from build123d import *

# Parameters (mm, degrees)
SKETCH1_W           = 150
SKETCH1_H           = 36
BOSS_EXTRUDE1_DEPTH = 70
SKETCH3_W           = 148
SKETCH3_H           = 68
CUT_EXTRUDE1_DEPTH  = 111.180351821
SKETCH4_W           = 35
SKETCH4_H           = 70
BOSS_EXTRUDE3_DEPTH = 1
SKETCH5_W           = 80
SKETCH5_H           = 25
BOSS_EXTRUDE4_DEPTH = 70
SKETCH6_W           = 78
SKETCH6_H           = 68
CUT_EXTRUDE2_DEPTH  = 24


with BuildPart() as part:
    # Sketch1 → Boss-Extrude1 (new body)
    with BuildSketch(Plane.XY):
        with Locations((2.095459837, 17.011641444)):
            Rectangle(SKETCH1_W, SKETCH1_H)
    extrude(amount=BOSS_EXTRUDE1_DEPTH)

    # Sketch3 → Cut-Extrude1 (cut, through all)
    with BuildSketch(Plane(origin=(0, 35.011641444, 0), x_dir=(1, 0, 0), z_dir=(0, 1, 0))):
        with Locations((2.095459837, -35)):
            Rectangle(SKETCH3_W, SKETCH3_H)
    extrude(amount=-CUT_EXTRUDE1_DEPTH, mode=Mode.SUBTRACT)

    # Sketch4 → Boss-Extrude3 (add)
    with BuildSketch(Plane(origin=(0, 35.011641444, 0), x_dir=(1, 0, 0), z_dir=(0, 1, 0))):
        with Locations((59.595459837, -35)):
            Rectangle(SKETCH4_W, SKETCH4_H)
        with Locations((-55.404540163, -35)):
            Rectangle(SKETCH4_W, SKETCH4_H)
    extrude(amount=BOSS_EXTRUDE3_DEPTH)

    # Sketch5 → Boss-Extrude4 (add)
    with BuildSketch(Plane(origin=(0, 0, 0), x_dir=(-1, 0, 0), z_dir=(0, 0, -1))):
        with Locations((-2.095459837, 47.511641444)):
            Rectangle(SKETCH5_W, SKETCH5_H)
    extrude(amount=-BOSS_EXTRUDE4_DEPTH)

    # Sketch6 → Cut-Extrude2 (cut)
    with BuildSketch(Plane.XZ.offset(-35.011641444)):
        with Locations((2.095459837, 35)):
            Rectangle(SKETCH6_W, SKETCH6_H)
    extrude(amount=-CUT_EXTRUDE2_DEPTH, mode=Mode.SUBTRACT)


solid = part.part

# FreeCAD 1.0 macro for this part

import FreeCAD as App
import Part
import Sketcher
from FreeCAD import Vector


def add_polygon(sketch, points):
    """Adds a closed chain of lines whose ends are joined by coincident constraints."""
    first, n = sketch.GeometryCount, len(points)
    for a, b in zip(points, points[1:] + points[:1]):
        sketch.addGeometry(Part.LineSegment(App.Vector(*a, 0), App.Vector(*b, 0)), False)
    for i in range(n):
        sketch.addConstraint(Sketcher.Constraint("Coincident", first + i, 2, first + (i + 1) % n, 1))

doc = App.newDocument("Part")
body = doc.addObject("PartDesign::Body", "Body")

sketch1 = body.newObject("Sketcher::SketchObject", "Sketch")
sketch1.AttachmentSupport = (doc.getObject("XY_Plane"), [""])
sketch1.MapMode = "FlatFace"
add_polygon(sketch1, [(-73, 35), (-73, -1), (77, -1), (77, 35)])
sketch1.addConstraint(Sketcher.Constraint("Vertical", 0))
sketch1.addConstraint(Sketcher.Constraint("Horizontal", 1))
sketch1.addConstraint(Sketcher.Constraint("Vertical", 2))
sketch1.addConstraint(Sketcher.Constraint("Horizontal", 3))
sketch1.addConstraint(Sketcher.Constraint("DistanceX", 1, 1, 1, 2, 150.0))
sketch1.addConstraint(Sketcher.Constraint("DistanceY", 0, 2, 0, 1, 36.0))
sketch1.addConstraint(Sketcher.Constraint("DistanceX", 0, 2, -1, 1, 72.90454))
sketch1.addConstraint(Sketcher.Constraint("DistanceY", 0, 2, -1, 1, 0.988359))
pad1 = body.newObject("PartDesign::Pad", "Pad")
pad1.Profile = sketch1
pad1.Length = 70

sketch2 = body.newObject("Sketcher::SketchObject", "Sketch001")
sketch2.AttachmentSupport = (doc.getObject("XZ_Plane"), [""])
sketch2.MapMode = "FlatFace"
sketch2.AttachmentOffset = App.Placement(Vector(0, 0, -35.011641), App.Rotation())
add_polygon(sketch2, [(-72, 1), (-72, 69), (76, 69), (76, 1)])
sketch2.addConstraint(Sketcher.Constraint("Vertical", 0))
sketch2.addConstraint(Sketcher.Constraint("Horizontal", 1))
sketch2.addConstraint(Sketcher.Constraint("Vertical", 2))
sketch2.addConstraint(Sketcher.Constraint("Horizontal", 3))
sketch2.addConstraint(Sketcher.Constraint("DistanceX", 1, 1, 1, 2, 148.0))
sketch2.addConstraint(Sketcher.Constraint("DistanceY", 0, 1, 0, 2, 68.0))
sketch2.addConstraint(Sketcher.Constraint("DistanceY", -1, 1, 0, 2, 69.0))
sketch2.addConstraint(Sketcher.Constraint("DistanceX", 0, 2, -1, 1, 71.90454))
pocket1 = body.newObject("PartDesign::Pocket", "Pocket")
pocket1.Profile = sketch2
pocket1.Type = "ThroughAll"
pocket1.Reversed = True

sketch3 = body.newObject("Sketcher::SketchObject", "Sketch002")
sketch3.AttachmentSupport = (doc.getObject("XZ_Plane"), [""])
sketch3.MapMode = "FlatFace"
sketch3.AttachmentOffset = App.Placement(Vector(0, 0, -35.011641), App.Rotation())
add_polygon(sketch3, [(42, 0), (42, 70), (77, 70), (77, 0)])
add_polygon(sketch3, [(-73, 0), (-73, 70), (-38, 70), (-38, 0)])
sketch3.addConstraint(Sketcher.Constraint("Vertical", 0))
sketch3.addConstraint(Sketcher.Constraint("Horizontal", 1))
sketch3.addConstraint(Sketcher.Constraint("Vertical", 2))
sketch3.addConstraint(Sketcher.Constraint("Horizontal", 3))
sketch3.addConstraint(Sketcher.Constraint("Vertical", 4))
sketch3.addConstraint(Sketcher.Constraint("Horizontal", 5))
sketch3.addConstraint(Sketcher.Constraint("Vertical", 6))
sketch3.addConstraint(Sketcher.Constraint("Horizontal", 7))
sketch3.addConstraint(Sketcher.Constraint("PointOnObject", 2, 2, -1))
sketch3.addConstraint(Sketcher.Constraint("PointOnObject", 6, 2, -1))
sketch3.addConstraint(Sketcher.Constraint("Horizontal", 1, 2, 4, 2))
sketch3.addConstraint(Sketcher.Constraint("Equal", 3, 5))
sketch3.addConstraint(Sketcher.Constraint("DistanceX", 1, 1, 1, 2, 35.0))
sketch3.addConstraint(Sketcher.Constraint("DistanceY", 0, 1, 0, 2, 70.0))
sketch3.addConstraint(Sketcher.Constraint("DistanceX", 4, 2, 0, 2, 115.0))
sketch3.addConstraint(Sketcher.Constraint("DistanceX", -1, 1, 0, 2, 42.09546))
pad2 = body.newObject("PartDesign::Pad", "Pad001")
pad2.Profile = sketch3
pad2.Length = 1
pad2.Reversed = True

sketch4 = body.newObject("Sketcher::SketchObject", "Sketch003")
sketch4.AttachmentSupport = (doc.getObject("XY_Plane"), [""])
sketch4.MapMode = "FlatFace"
add_polygon(sketch4, [(42, 60), (42, 35), (-38, 35), (-38, 60)])
sketch4.addConstraint(Sketcher.Constraint("Vertical", 0))
sketch4.addConstraint(Sketcher.Constraint("Horizontal", 1))
sketch4.addConstraint(Sketcher.Constraint("Vertical", 2))
sketch4.addConstraint(Sketcher.Constraint("Horizontal", 3))
sketch4.addConstraint(Sketcher.Constraint("DistanceX", 1, 2, 1, 1, 80.0))
sketch4.addConstraint(Sketcher.Constraint("DistanceY", 0, 2, 0, 1, 25.0))
sketch4.addConstraint(Sketcher.Constraint("DistanceX", -1, 1, 0, 2, 42.09546))
sketch4.addConstraint(Sketcher.Constraint("DistanceY", -1, 1, 0, 2, 35.011641))
pad3 = body.newObject("PartDesign::Pad", "Pad002")
pad3.Profile = sketch4
pad3.Length = 70

sketch5 = body.newObject("Sketcher::SketchObject", "Sketch004")
sketch5.AttachmentSupport = (doc.getObject("XZ_Plane"), [""])
sketch5.MapMode = "FlatFace"
sketch5.AttachmentOffset = App.Placement(Vector(0, 0, -35.011641), App.Rotation())
add_polygon(sketch5, [(-37, 69), (-37, 1), (41, 1), (41, 69)])
sketch5.addConstraint(Sketcher.Constraint("Vertical", 0))
sketch5.addConstraint(Sketcher.Constraint("Horizontal", 1))
sketch5.addConstraint(Sketcher.Constraint("Vertical", 2))
sketch5.addConstraint(Sketcher.Constraint("Horizontal", 3))
sketch5.addConstraint(Sketcher.Constraint("DistanceX", 1, 1, 1, 2, 78.0))
sketch5.addConstraint(Sketcher.Constraint("DistanceY", 0, 2, 0, 1, 68.0))
sketch5.addConstraint(Sketcher.Constraint("DistanceY", -1, 1, 0, 2, 1.0))
sketch5.addConstraint(Sketcher.Constraint("DistanceX", 0, 2, -1, 1, 36.90454))
pocket2 = body.newObject("PartDesign::Pocket", "Pocket001")
pocket2.Profile = sketch5
pocket2.Length = 24

doc.recompute()
